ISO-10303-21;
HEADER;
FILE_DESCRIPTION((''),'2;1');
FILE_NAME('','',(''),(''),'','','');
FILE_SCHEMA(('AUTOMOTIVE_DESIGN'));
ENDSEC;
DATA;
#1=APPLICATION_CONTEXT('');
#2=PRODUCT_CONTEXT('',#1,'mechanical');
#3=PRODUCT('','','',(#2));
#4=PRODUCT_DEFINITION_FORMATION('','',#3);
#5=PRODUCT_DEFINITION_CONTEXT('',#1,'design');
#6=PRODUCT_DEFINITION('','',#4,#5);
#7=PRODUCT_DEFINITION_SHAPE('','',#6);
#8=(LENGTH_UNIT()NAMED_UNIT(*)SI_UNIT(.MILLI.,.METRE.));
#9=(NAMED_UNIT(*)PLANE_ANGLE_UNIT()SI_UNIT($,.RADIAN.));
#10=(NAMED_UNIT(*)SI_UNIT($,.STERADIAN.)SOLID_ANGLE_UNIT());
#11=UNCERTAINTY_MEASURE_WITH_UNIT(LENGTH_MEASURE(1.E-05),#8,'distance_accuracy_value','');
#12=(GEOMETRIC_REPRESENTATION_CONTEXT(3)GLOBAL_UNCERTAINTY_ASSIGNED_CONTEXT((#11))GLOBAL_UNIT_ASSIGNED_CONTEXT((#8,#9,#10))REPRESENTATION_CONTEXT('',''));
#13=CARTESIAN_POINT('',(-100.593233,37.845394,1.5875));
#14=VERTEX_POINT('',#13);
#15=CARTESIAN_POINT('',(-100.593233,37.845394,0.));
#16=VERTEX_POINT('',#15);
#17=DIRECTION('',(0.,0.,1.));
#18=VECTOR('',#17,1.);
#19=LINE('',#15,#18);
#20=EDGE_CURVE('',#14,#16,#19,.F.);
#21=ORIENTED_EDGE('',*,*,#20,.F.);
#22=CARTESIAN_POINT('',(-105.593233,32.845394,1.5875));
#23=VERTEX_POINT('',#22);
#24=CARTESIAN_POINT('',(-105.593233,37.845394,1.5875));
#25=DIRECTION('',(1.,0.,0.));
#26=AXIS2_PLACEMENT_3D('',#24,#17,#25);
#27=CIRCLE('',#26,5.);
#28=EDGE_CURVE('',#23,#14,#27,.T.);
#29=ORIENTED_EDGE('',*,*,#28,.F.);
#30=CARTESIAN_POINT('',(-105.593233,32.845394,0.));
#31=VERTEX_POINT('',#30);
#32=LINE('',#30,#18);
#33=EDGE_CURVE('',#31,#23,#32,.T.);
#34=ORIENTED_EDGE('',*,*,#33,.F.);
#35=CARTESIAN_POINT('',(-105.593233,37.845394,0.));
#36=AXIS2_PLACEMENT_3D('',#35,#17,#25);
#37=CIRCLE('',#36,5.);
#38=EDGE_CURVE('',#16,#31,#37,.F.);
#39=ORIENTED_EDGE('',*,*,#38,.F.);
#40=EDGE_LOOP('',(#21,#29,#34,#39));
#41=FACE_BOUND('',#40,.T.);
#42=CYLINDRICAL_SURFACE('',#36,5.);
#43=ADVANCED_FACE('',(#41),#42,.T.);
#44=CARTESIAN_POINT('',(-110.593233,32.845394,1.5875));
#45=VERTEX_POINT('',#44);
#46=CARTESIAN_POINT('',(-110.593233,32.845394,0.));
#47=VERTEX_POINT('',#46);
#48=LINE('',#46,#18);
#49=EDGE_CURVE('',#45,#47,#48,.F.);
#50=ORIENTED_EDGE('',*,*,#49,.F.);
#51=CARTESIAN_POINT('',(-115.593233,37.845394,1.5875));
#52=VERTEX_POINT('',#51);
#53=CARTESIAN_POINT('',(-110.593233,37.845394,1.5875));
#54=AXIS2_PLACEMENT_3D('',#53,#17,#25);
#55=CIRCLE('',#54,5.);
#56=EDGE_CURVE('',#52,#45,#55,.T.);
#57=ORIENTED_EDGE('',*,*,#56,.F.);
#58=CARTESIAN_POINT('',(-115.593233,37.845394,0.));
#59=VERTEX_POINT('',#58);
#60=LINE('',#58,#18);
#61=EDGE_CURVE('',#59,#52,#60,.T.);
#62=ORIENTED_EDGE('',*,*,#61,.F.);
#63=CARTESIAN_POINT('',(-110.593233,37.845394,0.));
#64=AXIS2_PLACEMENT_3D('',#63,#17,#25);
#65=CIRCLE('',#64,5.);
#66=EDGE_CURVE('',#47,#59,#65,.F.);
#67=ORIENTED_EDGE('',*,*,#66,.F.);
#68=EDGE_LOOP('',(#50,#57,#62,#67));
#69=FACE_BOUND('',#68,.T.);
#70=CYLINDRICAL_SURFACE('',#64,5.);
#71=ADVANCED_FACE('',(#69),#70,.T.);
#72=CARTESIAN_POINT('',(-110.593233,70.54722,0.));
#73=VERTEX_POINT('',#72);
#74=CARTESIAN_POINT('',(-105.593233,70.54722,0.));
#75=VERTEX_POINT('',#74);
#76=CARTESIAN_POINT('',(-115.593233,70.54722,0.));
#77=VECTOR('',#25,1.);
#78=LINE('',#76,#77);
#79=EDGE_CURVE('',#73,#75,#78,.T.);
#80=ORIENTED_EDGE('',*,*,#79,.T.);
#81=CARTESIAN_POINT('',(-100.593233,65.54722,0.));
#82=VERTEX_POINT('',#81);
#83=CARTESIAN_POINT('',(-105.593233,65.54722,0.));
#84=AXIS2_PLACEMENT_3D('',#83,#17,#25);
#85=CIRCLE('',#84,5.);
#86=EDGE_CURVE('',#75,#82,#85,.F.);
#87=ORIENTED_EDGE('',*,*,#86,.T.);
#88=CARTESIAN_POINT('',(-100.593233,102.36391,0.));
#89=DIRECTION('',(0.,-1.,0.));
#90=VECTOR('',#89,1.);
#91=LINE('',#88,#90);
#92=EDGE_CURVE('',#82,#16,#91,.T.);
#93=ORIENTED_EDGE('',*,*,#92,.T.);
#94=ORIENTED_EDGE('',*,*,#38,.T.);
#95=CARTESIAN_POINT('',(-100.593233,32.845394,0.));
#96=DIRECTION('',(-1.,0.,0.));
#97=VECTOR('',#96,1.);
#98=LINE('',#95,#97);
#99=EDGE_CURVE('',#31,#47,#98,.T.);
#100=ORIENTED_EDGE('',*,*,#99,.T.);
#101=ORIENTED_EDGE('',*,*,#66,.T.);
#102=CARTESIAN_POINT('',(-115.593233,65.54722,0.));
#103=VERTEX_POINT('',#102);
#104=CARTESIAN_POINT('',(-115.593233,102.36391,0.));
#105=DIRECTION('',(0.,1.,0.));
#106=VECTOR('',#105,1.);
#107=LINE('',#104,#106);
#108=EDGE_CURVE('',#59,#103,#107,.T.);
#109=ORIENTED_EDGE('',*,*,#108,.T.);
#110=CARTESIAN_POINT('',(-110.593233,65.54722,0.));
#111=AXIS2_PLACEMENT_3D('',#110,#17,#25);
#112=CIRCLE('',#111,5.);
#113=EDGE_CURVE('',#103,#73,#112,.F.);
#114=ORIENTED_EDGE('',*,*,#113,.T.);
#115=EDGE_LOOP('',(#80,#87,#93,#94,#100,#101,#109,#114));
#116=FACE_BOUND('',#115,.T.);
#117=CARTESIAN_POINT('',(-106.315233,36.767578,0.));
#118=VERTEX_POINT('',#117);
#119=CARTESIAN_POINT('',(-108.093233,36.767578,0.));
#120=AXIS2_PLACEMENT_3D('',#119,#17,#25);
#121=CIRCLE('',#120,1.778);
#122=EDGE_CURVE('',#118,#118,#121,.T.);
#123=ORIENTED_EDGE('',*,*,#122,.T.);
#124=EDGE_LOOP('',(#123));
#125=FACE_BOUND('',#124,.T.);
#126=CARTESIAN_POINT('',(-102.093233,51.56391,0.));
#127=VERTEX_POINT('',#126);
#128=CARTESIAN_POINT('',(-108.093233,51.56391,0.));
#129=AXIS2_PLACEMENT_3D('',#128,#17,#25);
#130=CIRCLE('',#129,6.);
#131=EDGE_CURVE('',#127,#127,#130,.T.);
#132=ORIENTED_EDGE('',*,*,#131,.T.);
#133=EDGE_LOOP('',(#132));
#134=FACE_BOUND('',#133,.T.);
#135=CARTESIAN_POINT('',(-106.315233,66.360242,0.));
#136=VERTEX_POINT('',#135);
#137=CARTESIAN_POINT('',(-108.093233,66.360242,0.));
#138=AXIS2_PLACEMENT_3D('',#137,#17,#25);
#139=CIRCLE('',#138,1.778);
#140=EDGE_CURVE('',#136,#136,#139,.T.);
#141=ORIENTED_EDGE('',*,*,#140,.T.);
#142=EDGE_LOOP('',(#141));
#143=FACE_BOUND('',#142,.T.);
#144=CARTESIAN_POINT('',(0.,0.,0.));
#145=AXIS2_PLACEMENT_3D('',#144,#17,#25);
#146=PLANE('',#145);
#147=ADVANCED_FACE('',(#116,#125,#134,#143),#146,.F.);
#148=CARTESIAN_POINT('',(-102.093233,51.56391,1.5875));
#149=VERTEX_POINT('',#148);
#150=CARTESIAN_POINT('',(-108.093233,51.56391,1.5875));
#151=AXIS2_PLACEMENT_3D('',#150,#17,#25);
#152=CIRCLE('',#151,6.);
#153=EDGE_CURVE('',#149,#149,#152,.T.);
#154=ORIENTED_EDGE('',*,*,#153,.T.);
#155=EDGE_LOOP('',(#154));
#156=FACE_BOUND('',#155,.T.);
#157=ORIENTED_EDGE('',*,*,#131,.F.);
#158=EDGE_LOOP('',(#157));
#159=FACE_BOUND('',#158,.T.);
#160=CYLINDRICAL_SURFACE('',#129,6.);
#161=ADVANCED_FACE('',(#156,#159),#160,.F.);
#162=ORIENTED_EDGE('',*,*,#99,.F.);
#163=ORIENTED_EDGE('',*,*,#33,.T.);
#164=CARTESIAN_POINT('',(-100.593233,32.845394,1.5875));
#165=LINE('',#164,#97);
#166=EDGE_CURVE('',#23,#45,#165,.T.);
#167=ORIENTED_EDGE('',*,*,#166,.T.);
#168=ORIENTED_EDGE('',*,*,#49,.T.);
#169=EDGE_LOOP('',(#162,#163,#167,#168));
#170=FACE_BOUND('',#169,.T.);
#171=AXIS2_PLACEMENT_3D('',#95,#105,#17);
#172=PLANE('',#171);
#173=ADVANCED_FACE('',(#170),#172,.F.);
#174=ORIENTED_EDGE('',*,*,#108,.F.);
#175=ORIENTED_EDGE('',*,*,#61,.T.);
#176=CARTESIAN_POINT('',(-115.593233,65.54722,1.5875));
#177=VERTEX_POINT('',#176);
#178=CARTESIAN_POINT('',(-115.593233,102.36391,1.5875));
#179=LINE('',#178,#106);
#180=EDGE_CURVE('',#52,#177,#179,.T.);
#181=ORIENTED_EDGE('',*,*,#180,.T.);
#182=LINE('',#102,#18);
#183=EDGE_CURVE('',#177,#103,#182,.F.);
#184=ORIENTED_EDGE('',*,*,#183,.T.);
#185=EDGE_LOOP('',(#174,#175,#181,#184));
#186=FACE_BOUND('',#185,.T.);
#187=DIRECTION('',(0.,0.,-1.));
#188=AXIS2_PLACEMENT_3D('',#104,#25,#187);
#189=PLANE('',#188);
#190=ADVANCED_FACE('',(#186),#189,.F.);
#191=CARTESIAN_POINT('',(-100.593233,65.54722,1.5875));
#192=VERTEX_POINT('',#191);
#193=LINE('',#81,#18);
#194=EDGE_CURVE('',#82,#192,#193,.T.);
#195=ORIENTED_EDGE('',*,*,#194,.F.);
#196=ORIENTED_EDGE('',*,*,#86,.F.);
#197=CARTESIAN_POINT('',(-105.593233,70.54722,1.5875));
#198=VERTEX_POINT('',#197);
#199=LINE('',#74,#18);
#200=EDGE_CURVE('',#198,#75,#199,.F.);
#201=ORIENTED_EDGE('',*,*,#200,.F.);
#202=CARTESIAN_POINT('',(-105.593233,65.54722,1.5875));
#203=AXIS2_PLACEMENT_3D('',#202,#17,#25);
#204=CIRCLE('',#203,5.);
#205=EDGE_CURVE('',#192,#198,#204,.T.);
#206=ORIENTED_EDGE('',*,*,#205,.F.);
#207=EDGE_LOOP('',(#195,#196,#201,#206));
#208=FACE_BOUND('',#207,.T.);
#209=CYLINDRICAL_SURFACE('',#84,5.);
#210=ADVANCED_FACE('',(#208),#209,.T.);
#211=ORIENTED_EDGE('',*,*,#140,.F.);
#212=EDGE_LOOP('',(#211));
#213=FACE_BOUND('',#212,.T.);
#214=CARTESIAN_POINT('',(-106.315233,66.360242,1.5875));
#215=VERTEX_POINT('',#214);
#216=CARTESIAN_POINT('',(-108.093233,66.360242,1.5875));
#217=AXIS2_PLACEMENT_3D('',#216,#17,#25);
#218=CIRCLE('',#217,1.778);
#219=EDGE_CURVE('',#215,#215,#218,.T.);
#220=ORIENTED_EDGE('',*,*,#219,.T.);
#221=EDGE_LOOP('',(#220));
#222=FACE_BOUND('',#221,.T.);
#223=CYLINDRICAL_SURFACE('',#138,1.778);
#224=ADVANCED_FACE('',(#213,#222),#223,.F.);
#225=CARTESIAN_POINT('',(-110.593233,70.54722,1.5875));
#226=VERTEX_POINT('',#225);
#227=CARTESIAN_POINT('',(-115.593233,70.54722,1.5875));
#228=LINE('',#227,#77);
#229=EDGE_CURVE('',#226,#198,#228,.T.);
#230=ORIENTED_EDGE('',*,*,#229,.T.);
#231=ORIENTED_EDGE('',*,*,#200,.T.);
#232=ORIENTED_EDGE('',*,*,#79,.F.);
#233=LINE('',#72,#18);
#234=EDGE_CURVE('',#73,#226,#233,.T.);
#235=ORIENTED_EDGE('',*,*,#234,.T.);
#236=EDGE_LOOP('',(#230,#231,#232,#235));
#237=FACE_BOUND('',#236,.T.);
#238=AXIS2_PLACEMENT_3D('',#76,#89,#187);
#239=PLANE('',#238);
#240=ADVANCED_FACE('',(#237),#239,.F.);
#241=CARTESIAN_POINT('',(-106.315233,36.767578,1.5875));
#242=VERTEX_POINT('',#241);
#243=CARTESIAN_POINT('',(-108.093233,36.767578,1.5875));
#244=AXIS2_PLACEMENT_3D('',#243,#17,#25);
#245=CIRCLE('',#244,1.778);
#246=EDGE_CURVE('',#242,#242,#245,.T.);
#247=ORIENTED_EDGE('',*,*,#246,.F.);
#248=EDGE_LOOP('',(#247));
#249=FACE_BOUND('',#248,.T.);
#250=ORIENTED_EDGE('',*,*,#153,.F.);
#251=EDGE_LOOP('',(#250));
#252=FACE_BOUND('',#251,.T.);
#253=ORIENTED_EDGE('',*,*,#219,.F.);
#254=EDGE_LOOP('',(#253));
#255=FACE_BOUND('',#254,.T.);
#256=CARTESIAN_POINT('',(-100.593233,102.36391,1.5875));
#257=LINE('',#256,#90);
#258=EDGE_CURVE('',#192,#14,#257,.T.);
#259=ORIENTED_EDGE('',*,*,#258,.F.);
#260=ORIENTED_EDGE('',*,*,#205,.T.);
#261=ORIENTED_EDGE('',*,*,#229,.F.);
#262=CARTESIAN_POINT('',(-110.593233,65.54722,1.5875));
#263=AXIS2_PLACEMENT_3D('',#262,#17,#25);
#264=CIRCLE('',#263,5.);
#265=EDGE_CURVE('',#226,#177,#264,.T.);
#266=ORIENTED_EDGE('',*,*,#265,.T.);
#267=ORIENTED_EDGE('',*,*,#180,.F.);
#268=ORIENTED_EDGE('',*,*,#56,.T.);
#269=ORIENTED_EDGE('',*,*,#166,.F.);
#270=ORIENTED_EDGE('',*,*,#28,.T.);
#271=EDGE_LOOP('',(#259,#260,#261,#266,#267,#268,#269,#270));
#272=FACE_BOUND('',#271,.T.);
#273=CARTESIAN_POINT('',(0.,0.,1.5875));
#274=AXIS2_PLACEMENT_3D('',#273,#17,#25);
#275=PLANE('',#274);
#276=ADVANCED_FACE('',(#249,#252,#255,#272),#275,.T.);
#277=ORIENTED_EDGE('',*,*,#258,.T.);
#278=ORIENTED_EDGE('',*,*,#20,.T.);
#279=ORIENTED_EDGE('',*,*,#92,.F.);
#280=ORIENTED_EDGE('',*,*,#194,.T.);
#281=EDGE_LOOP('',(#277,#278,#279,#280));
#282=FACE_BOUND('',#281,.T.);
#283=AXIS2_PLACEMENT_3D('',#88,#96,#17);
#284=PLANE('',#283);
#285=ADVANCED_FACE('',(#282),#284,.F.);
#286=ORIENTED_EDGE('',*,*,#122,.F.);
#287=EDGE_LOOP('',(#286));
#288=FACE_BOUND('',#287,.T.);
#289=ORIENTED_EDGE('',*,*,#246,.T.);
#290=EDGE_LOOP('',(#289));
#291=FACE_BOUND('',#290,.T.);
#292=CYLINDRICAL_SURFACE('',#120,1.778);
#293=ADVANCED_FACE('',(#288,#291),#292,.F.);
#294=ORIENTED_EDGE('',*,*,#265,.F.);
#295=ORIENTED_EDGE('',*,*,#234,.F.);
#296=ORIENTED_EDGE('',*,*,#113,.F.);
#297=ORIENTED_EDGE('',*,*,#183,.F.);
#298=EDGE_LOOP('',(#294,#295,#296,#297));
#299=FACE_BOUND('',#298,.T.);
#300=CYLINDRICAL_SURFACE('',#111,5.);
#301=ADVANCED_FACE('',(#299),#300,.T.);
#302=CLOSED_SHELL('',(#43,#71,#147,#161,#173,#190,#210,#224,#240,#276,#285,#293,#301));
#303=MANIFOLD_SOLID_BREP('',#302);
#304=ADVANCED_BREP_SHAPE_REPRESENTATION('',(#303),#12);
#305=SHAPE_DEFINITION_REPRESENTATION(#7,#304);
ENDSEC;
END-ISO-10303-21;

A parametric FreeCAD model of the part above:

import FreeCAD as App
import Part
import Sketcher
Q = App.Units.Quantity


def edges_at(feature, points):
    """Names of the edges that pass closest to the given points."""
    edges = feature.Shape.Edges
    near = lambda p: min(range(len(edges)), key=lambda i: edges[i].distToShape(Part.Vertex(*p))[0])
    return sorted({f"Edge{near(p) + 1}" for p in points})

doc = App.newDocument("Part")
params = doc.addObject("Spreadsheet::Sheet", "Params")
for row, (alias, value) in enumerate([
    ("sketch1_width", "101.6 mm"),
    ("pad1_length", "1.5875 mm"),
    ("sketch2_diameter", "12 mm"),
    ("sketch4_width", "43.3 mm"),
    ("sketch4_height", "101.6 mm"),
    ("sketch5_width", "15 mm"),
    ("fillet_radius", "5 mm"),
], start=1):
    params.set(f"A{row}", alias)
    params.set(f"B{row}", "=" + value)
    params.setAlias(f"B{row}", alias)

body = doc.addObject("PartDesign::Body", "Body")

# Sketch on XY plane
sketch1 = doc.addObject("Sketcher::SketchObject", "Sketch")
body.addObject(sketch1)
sketch1.AttachmentSupport = (doc.XY_Plane, [""])
sketch1.MapMode = "FlatFace"
sketch1.addGeometry([
    Part.LineSegment(App.Vector(-159, 102, 0), App.Vector(-159, 1, 0)),
    Part.LineSegment(App.Vector(-159, 1, 0), App.Vector(-57, 1, 0)),
    Part.LineSegment(App.Vector(-57, 1, 0), App.Vector(-57, 102, 0)),
    Part.LineSegment(App.Vector(-57, 102, 0), App.Vector(-159, 102, 0)),
], False)
sketch1.addConstraint([
    Sketcher.Constraint("Coincident", 0, 2, 1, 1),
    Sketcher.Constraint("Coincident", 1, 2, 2, 1),
    Sketcher.Constraint("Coincident", 2, 2, 3, 1),
    Sketcher.Constraint("Coincident", 3, 2, 0, 1),
    Sketcher.Constraint("Vertical", 0),
    Sketcher.Constraint("Horizontal", 1),
    Sketcher.Constraint("Vertical", 2),
    Sketcher.Constraint("Horizontal", 3),
    Sketcher.Constraint("Equal", 3, 0),
    Sketcher.Constraint("DistanceX", 1, 1, 1, 2, Q("101.6 mm")),
    Sketcher.Constraint("DistanceY", -1, 1, 0, 2, Q("0.76391 mm")),
    Sketcher.Constraint("DistanceX", 0, 2, -1, 1, Q("158.893233 mm")),
])
sketch1.setExpression("Constraints[9]", "Params.sketch1_width")
pad1 = doc.addObject("PartDesign::Pad", "Pad")
body.addObject(pad1)
pad1.Profile = sketch1
pad1.setExpression("Length", "Params.pad1_length")

# Sketch on XY plane
sketch2 = doc.addObject("Sketcher::SketchObject", "Sketch001")
body.addObject(sketch2)
sketch2.AttachmentSupport = (doc.XY_Plane, [""])
sketch2.MapMode = "FlatFace"
sketch2.AttachmentOffset = App.Placement(App.Vector(0, 0, 1.5875), App.Rotation())
sketch2.addGeometry(Part.Circle(App.Vector(-108, 52, 0), App.Vector(0, 0, 1), 6), False)
sketch2.addConstraint([
    Sketcher.Constraint("Diameter", 0, Q("12 mm")),
    Sketcher.Constraint("DistanceY", -1, 1, 0, 3, Q("51.56391 mm")),
    Sketcher.Constraint("DistanceX", 0, 3, -1, 1, Q("108.093233 mm")),
])
sketch2.setExpression("Constraints[0]", "Params.sketch2_diameter")
pocket1 = doc.addObject("PartDesign::Pocket", "Pocket")
body.addObject(pocket1)
pocket1.Profile = sketch2
pocket1.Type = "ThroughAll"

# Sketch on XY plane
sketch3 = doc.addObject("Sketcher::SketchObject", "Sketch002")
body.addObject(sketch3)
sketch3.AttachmentSupport = (doc.XY_Plane, [""])
sketch3.MapMode = "FlatFace"
sketch3.AttachmentOffset = App.Placement(App.Vector(0, 0, 1.5875), App.Rotation())
sketch3.addGeometry([
    Part.Circle(App.Vector(-108.1, 66.4, 0), App.Vector(0, 0, 1), 1.8),
    Part.Circle(App.Vector(-108.1, 36.8, 0), App.Vector(0, 0, 1), 1.8),
], False)
sketch3.addConstraint([
    Sketcher.Constraint("Equal", 0, 1),
    Sketcher.Constraint("Vertical", 0, 3, 1, 3),
    Sketcher.Constraint("Diameter", 0, Q("3.556 mm")),
    Sketcher.Constraint("DistanceY", -1, 1, 0, 3, Q("66.360242 mm")),
    Sketcher.Constraint("DistanceX", 0, 3, -1, 1, Q("108.093233 mm")),
    Sketcher.Constraint("DistanceY", -1, 1, 1, 3, Q("36.767578 mm")),
])
pocket2 = doc.addObject("PartDesign::Pocket", "Pocket001")
body.addObject(pocket2)
pocket2.Profile = sketch3
pocket2.Type = "ThroughAll"

# Sketch on XY plane
sketch4 = doc.addObject("Sketcher::SketchObject", "Sketch003")
body.addObject(sketch4)
sketch4.AttachmentSupport = (doc.XY_Plane, [""])
sketch4.MapMode = "FlatFace"
sketch4.AttachmentOffset = App.Placement(App.Vector(0, 0, 1.5875), App.Rotation())
sketch4.addGeometry([
    Part.LineSegment(App.Vector(-159, 102, 0), App.Vector(-159, 1, 0)),  # 0
    Part.LineSegment(App.Vector(-159, 1, 0), App.Vector(-116, 1, 0)),  # 1
    Part.LineSegment(App.Vector(-116, 1, 0), App.Vector(-116, 102, 0)),  # 2
    Part.LineSegment(App.Vector(-116, 102, 0), App.Vector(-159, 102, 0)),  # 3
    Part.LineSegment(App.Vector(-101, 102, 0), App.Vector(-101, 1, 0)),  # 4
    Part.LineSegment(App.Vector(-101, 1, 0), App.Vector(-57, 1, 0)),  # 5
    Part.LineSegment(App.Vector(-57, 1, 0), App.Vector(-57, 102, 0)),  # 6
    Part.LineSegment(App.Vector(-57, 102, 0), App.Vector(-101, 102, 0)),  # 7
], False)
sketch4.addConstraint([
    Sketcher.Constraint("Coincident", 0, 2, 1, 1),
    Sketcher.Constraint("Coincident", 1, 2, 2, 1),
    Sketcher.Constraint("Coincident", 2, 2, 3, 1),
    Sketcher.Constraint("Coincident", 3, 2, 0, 1),
    Sketcher.Constraint("Coincident", 4, 2, 5, 1),
    Sketcher.Constraint("Coincident", 5, 2, 6, 1),
    Sketcher.Constraint("Coincident", 6, 2, 7, 1),
    Sketcher.Constraint("Coincident", 7, 2, 4, 1),
    Sketcher.Constraint("Vertical", 0),
    Sketcher.Constraint("Horizontal", 1),
    Sketcher.Constraint("Vertical", 2),
    Sketcher.Constraint("Horizontal", 3),
    Sketcher.Constraint("Vertical", 4),
    Sketcher.Constraint("Horizontal", 5),
    Sketcher.Constraint("Vertical", 6),
    Sketcher.Constraint("Horizontal", 7),
    Sketcher.Constraint("Horizontal", 1, 2, 4, 2),
    Sketcher.Constraint("Horizontal", 3, 2, 6, 2),
    Sketcher.Constraint("Equal", 3, 5),
    Sketcher.Constraint("DistanceX", 1, 1, 1, 2, Q("43.3 mm")),
    Sketcher.Constraint("DistanceY", 0, 2, 0, 1, Q("101.6 mm")),
    Sketcher.Constraint("DistanceX", 1, 2, 4, 2, Q("15 mm")),
    Sketcher.Constraint("DistanceY", -1, 1, 0, 2, Q("0.76391 mm")),
    Sketcher.Constraint("DistanceX", 0, 2, -1, 1, Q("158.893233 mm")),
])
sketch4.setExpression("Constraints[19]", "Params.sketch4_width")
sketch4.setExpression("Constraints[20]", "Params.sketch4_height")
pocket3 = doc.addObject("PartDesign::Pocket", "Pocket002")
body.addObject(pocket3)
pocket3.Profile = sketch4
pocket3.Type = "ThroughAll"

# Sketch on XY plane
sketch5 = doc.addObject("Sketcher::SketchObject", "Sketch004")
body.addObject(sketch5)
sketch5.AttachmentSupport = (doc.XY_Plane, [""])
sketch5.MapMode = "FlatFace"
sketch5.AttachmentOffset = App.Placement(App.Vector(0, 0, 1.5875), App.Rotation())
sketch5.addGeometry([
    Part.LineSegment(App.Vector(-116, 102, 0), App.Vector(-116, 71, 0)),  # 0
    Part.LineSegment(App.Vector(-116, 71, 0), App.Vector(-101, 71, 0)),  # 1
    Part.LineSegment(App.Vector(-101, 71, 0), App.Vector(-101, 102, 0)),  # 2
    Part.LineSegment(App.Vector(-101, 102, 0), App.Vector(-116, 102, 0)),  # 3
    Part.LineSegment(App.Vector(-116, 33, 0), App.Vector(-116, 1, 0)),  # 4
    Part.LineSegment(App.Vector(-116, 1, 0), App.Vector(-101, 1, 0)),  # 5
    Part.LineSegment(App.Vector(-101, 1, 0), App.Vector(-101, 33, 0)),  # 6
    Part.LineSegment(App.Vector(-101, 33, 0), App.Vector(-116, 33, 0)),  # 7
], False)
sketch5.addConstraint([
    Sketcher.Constraint("Coincident", 0, 2, 1, 1),
    Sketcher.Constraint("Coincident", 1, 2, 2, 1),
    Sketcher.Constraint("Coincident", 2, 2, 3, 1),
    Sketcher.Constraint("Coincident", 3, 2, 0, 1),
    Sketcher.Constraint("Coincident", 4, 2, 5, 1),
    Sketcher.Constraint("Coincident", 5, 2, 6, 1),
    Sketcher.Constraint("Coincident", 6, 2, 7, 1),
    Sketcher.Constraint("Coincident", 7, 2, 4, 1),
    Sketcher.Constraint("Vertical", 0),
    Sketcher.Constraint("Horizontal", 1),
    Sketcher.Constraint("Vertical", 2),
    Sketcher.Constraint("Horizontal", 3),
    Sketcher.Constraint("Vertical", 4),
    Sketcher.Constraint("Horizontal", 5),
    Sketcher.Constraint("Vertical", 6),
    Sketcher.Constraint("Horizontal", 7),
    Sketcher.Constraint("Vertical", 3, 2, 4, 2),
    Sketcher.Constraint("Vertical", 2, 2, 5, 2),
    Sketcher.Constraint("DistanceX", 1, 1, 1, 2, Q("15 mm")),
    Sketcher.Constraint("DistanceY", 4, 2, 3, 2, Q("101.6 mm")),
    Sketcher.Constraint("DistanceY", 0, 2, 0, 1, Q("31.81669 mm")),
    Sketcher.Constraint("DistanceY", 4, 2, 4, 1, Q("32.081484 mm")),
    Sketcher.Constraint("DistanceY", -1, 1, 0, 2, Q("70.54722 mm")),
    Sketcher.Constraint("DistanceX", 0, 2, -1, 1, Q("115.593233 mm")),
])
sketch5.setExpression("Constraints[18]", "Params.sketch5_width")
pocket4 = doc.addObject("PartDesign::Pocket", "Pocket003")
body.addObject(pocket4)
pocket4.Profile = sketch5
pocket4.Type = "ThroughAll"
doc.recompute()

fillet = doc.addObject("PartDesign::Fillet", "Fillet")
body.addObject(fillet)
fillet.Base = (pocket4, edges_at(pocket4, [
    (-115.593, 70.547, 0.794),
    (-100.593, 70.547, 0.794),
    (-100.593, 32.845, 0.794),
    (-115.593, 32.845, 0.794),
]))
fillet.setExpression("Radius", "Params.fillet_radius")

doc.recompute()
